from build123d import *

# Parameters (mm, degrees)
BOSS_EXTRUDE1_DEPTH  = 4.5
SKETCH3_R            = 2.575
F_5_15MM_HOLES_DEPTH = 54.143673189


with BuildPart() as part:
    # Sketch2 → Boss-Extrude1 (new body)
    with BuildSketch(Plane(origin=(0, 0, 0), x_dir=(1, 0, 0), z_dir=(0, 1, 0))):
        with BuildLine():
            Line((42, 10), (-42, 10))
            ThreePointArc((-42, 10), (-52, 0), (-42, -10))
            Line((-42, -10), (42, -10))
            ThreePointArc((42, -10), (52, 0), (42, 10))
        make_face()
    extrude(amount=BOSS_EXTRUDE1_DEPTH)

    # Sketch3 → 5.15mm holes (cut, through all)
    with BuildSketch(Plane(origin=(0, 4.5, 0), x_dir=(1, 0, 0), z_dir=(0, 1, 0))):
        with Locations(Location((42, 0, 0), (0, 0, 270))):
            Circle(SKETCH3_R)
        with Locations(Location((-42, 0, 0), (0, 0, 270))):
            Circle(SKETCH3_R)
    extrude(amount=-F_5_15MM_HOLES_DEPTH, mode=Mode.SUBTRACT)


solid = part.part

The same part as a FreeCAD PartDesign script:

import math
import FreeCAD as App
import Part
import Sketcher
Q = App.Units.Quantity

doc = App.newDocument("Part")
body = doc.addObject("PartDesign::Body", "Body")

# Sketch on XZ plane
sketch1 = body.newObject("Sketcher::SketchObject", "Sketch")
sketch1.AttachmentSupport = (doc.getObject("XZ_Plane"), [""])
sketch1.MapMode = "FlatFace"
sketch1.addGeometry([
    Part.LineSegment(App.Vector(42, -10, 0), App.Vector(-42, -10, 0)),
    Part.ArcOfCircle(Part.Circle(App.Vector(-42, 0, 0), App.Vector(0, 0, 1), 10), math.radians(90), math.radians(270)),
    Part.LineSegment(App.Vector(-42, 10, 0), App.Vector(42, 10, 0)),
    Part.ArcOfCircle(Part.Circle(App.Vector(42, 0, 0), App.Vector(0, 0, 1), 10), math.radians(-90), math.radians(90)),
], False)
sketch1.addConstraint([
    Sketcher.Constraint("Tangent", 0, 2, 1, 2),
    Sketcher.Constraint("Tangent", 1, 1, 2, 1),
    Sketcher.Constraint("Tangent", 2, 2, 3, 2),
    Sketcher.Constraint("Tangent", 3, 1, 0, 1),
    Sketcher.Constraint("Horizontal", 0),
    Sketcher.Constraint("Horizontal", 2),
    Sketcher.Constraint("Symmetric", 1, 3, 3, 3, -1, 1),
    Sketcher.Constraint("Radius", 1, Q("10 mm")),
    Sketcher.Constraint("DistanceX", 0, 2, 0, 1, Q("84 mm")),
])
pad1 = body.newObject("PartDesign::Pad", "Pad")
pad1.Profile = sketch1
pad1.Length = 4.5
pad1.Reversed = True

# Sketch on XZ plane
sketch2 = body.newObject("Sketcher::SketchObject", "Sketch001")
sketch2.AttachmentSupport = (doc.getObject("XZ_Plane"), [""])
sketch2.MapMode = "FlatFace"
sketch2.AttachmentOffset = App.Placement(App.Vector(0, 0, -4.5), App.Rotation())
sketch2.addGeometry([
    Part.Circle(App.Vector(42, 0, 0), App.Vector(0, 0, 1), 2.6),
    Part.Circle(App.Vector(-42, 0, 0), App.Vector(0, 0, 1), 2.6),
], False)
sketch2.addConstraint([
    Sketcher.Constraint("Equal", 0, 1),
    Sketcher.Constraint("Symmetric", 0, 3, 1, 3, -1, 1),
    Sketcher.Constraint("PointOnObject", 0, 3, -1),
    Sketcher.Constraint("Diameter", 0, Q("5.15 mm")),
    Sketcher.Constraint("DistanceX", -1, 1, 0, 3, Q("42 mm")),
])
pocket1 = body.newObject("PartDesign::Pocket", "Pocket")
pocket1.Profile = sketch2
pocket1.Type = "ThroughAll"
pocket1.Reversed = True

doc.recompute()
